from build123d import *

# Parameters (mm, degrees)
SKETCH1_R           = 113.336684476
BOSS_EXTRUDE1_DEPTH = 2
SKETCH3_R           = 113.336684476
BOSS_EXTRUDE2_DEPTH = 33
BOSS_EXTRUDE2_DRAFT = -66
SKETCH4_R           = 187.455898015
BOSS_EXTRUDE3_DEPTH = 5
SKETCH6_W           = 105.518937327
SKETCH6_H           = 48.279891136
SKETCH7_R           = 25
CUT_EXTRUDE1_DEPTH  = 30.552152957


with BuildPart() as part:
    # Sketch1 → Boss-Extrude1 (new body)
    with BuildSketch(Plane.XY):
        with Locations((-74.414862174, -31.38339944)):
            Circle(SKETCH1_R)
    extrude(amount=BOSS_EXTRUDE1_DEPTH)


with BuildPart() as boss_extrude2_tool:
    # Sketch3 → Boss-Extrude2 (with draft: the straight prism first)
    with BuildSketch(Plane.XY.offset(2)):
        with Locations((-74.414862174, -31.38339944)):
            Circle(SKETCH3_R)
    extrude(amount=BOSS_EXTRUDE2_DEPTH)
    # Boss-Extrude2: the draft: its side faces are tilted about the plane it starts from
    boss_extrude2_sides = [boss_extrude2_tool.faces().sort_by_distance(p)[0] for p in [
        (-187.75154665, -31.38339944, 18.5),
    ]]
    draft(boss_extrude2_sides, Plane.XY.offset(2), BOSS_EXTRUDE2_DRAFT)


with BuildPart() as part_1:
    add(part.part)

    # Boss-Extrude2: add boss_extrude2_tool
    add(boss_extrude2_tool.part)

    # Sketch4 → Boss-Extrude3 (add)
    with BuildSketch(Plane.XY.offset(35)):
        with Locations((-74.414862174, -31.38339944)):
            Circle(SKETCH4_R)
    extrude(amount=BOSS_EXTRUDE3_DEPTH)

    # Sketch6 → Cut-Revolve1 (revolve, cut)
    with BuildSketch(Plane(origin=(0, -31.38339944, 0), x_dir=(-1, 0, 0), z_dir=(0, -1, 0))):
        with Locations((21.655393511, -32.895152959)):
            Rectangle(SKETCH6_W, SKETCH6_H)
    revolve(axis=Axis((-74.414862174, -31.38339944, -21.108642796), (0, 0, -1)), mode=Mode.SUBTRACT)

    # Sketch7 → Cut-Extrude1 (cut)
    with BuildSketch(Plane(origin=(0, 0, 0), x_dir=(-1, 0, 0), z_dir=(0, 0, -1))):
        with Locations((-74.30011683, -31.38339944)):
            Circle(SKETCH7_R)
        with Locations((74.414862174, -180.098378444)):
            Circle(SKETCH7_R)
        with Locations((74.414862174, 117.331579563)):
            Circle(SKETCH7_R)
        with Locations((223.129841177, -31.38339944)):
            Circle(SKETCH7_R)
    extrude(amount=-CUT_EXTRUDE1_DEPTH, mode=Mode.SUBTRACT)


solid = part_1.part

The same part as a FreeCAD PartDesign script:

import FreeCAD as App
import Part
import Sketcher

V = App.Vector


def faces_at(feature, points):
    """Names of the faces that lie closest to the given points."""
    faces = feature.Shape.Faces
    near = lambda p: min(range(len(faces)), key=lambda i: faces[i].distToShape(Part.Vertex(*p))[0])
    return sorted({f"Face{near(p) + 1}" for p in points})

doc = App.newDocument("Part")
body = doc.addObject("PartDesign::Body", "Body")

sketch1 = doc.addObject("Sketcher::SketchObject", "Sketch")
body.addObject(sketch1)
sketch1.AttachmentSupport = (doc.XY_Plane, [""])
sketch1.MapMode = "FlatFace"
sketch1.addGeometry(Part.Circle(V(-74, -31, 0), V(0, 0, 1), 113), False)
sketch1.addConstraint(Sketcher.Constraint("Diameter", 0, 226.673369))
sketch1.addConstraint(Sketcher.Constraint("DistanceY", 0, 3, -1, 1, 31.383399))
sketch1.addConstraint(Sketcher.Constraint("DistanceX", 0, 3, -1, 1, 74.414862))
pad1 = doc.addObject("PartDesign::Pad", "Pad")
body.addObject(pad1)
pad1.Profile = sketch1
pad1.Length = 2
body2 = doc.addObject("PartDesign::Body", "Body001")

sketch2 = doc.addObject("Sketcher::SketchObject", "Sketch001")
body2.addObject(sketch2)
sketch2.AttachmentSupport = (doc.getObject("XY_Plane001"), [""])
sketch2.MapMode = "FlatFace"
sketch2.AttachmentOffset = App.Placement(V(0, 0, 2), App.Rotation())
sketch2.addGeometry(Part.Circle(V(-74, -31, 0), V(0, 0, 1), 113), False)
sketch2.addConstraint(Sketcher.Constraint("Diameter", 0, 226.673369))
sketch2.addConstraint(Sketcher.Constraint("DistanceY", 0, 3, -1, 1, 31.383399))
sketch2.addConstraint(Sketcher.Constraint("DistanceX", 0, 3, -1, 1, 74.414862))
pad2 = doc.addObject("PartDesign::Pad", "Pad001")
body2.addObject(pad2)
pad2.Profile = sketch2
pad2.Length = 33
doc.recompute()

datumplane = doc.addObject("PartDesign::Plane", "DatumPlane")
body2.addObject(datumplane)
datumplane.AttachmentSupport = (doc.getObject("XY_Plane001"), [""])
datumplane.MapMode = "FlatFace"
datumplane.AttachmentOffset = App.Placement(V(0, 0, 2), App.Rotation())
draft = doc.addObject("PartDesign::Draft", "Draft")
body2.addObject(draft)
draft.Base = (pad2, faces_at(pad2, [(-187.752, -31.383, 18.5)]))
draft.NeutralPlane = (datumplane, [""])
draft.Angle = 66
draft.Reversed = True
doc.recompute()

boolean = doc.addObject("PartDesign::Boolean", "Boolean")
body.addObject(boolean)
boolean.Type = "Fuse"
boolean.addObjects([body2])

sketch3 = doc.addObject("Sketcher::SketchObject", "Sketch002")
body.addObject(sketch3)
sketch3.AttachmentSupport = (doc.XY_Plane, [""])
sketch3.MapMode = "FlatFace"
sketch3.AttachmentOffset = App.Placement(V(0, 0, 35), App.Rotation())
sketch3.addGeometry(Part.Circle(V(-74, -31, 0), V(0, 0, 1), 187), False)
sketch3.addConstraint(Sketcher.Constraint("Diameter", 0, 374.911796))
sketch3.addConstraint(Sketcher.Constraint("DistanceY", 0, 3, -1, 1, 31.383399))
sketch3.addConstraint(Sketcher.Constraint("DistanceX", 0, 3, -1, 1, 74.414862))
pad3 = doc.addObject("PartDesign::Pad", "Pad002")
body.addObject(pad3)
pad3.Profile = sketch3
pad3.Length = 5

sketch4 = doc.addObject("Sketcher::SketchObject", "Sketch003")
body.addObject(sketch4)
sketch4.AttachmentSupport = (doc.XZ_Plane, [""])
sketch4.MapMode = "FlatFace"
sketch4.AttachmentOffset = App.Placement(V(0, 0, 31.383399), App.Rotation())
sketch4.addGeometry(Part.LineSegment(V(31, 9, 0), V(31, 57, 0)), False)
sketch4.addGeometry(Part.LineSegment(V(31, 57, 0), V(-74, 57, 0)), False)
sketch4.addGeometry(Part.LineSegment(V(-74, 57, 0), V(-74, 9, 0)), False)
sketch4.addGeometry(Part.LineSegment(V(-74, 9, 0), V(31, 9, 0)), False)
sketch4.addGeometry(Part.LineSegment(V(-74, 57, 0), V(-74, 9, 0)), True)
sketch4.addConstraint(Sketcher.Constraint("Coincident", 0, 2, 1, 1))
sketch4.addConstraint(Sketcher.Constraint("Coincident", 1, 2, 2, 1))
sketch4.addConstraint(Sketcher.Constraint("Coincident", 2, 2, 3, 1))
sketch4.addConstraint(Sketcher.Constraint("Coincident", 3, 2, 0, 1))
sketch4.addConstraint(Sketcher.Constraint("Vertical", 0))
sketch4.addConstraint(Sketcher.Constraint("Horizontal", 1))
sketch4.addConstraint(Sketcher.Constraint("Vertical", 2))
sketch4.addConstraint(Sketcher.Constraint("Horizontal", 3))
sketch4.addConstraint(Sketcher.Constraint("Vertical", 4))
sketch4.addConstraint(Sketcher.Constraint("Coincident", 4, 1, 1, 2))
sketch4.addConstraint(Sketcher.Constraint("Horizontal", 3, 2, 4, 2))
sketch4.addConstraint(Sketcher.Constraint("DistanceY", 0, 1, 0, 2, 48.279891))
sketch4.addConstraint(Sketcher.Constraint("DistanceY", -1, 1, 0, 2, 57.035099))
sketch4.addConstraint(Sketcher.Constraint("DistanceX", 1, 2, 1, 1, 105.518937))
sketch4.addConstraint(Sketcher.Constraint("DistanceX", -1, 1, 0, 2, 31.104075))
groove = doc.addObject("PartDesign::Groove", "Groove")
body.addObject(groove)
groove.Profile = sketch4
groove.ReferenceAxis = (sketch4, ["Axis0"])
groove.Angle = 360

sketch5 = doc.addObject("Sketcher::SketchObject", "Sketch004")
body.addObject(sketch5)
sketch5.AttachmentSupport = (doc.XY_Plane, [""])
sketch5.MapMode = "FlatFace"
sketch5.addGeometry(Part.Circle(V(74, -31, 0), V(0, 0, 1), 25), False)
sketch5.addGeometry(Part.Circle(V(-74, -180, 0), V(0, 0, 1), 25), False)
sketch5.addGeometry(Part.Circle(V(-74, 117, 0), V(0, 0, 1), 25), False)
sketch5.addGeometry(Part.Circle(V(-223, -31, 0), V(0, 0, 1), 25), False)
sketch5.addConstraint(Sketcher.Constraint("Equal", 0, 1))
sketch5.addConstraint(Sketcher.Constraint("Equal", 1, 2))
sketch5.addConstraint(Sketcher.Constraint("Equal", 2, 3))
sketch5.addConstraint(Sketcher.Constraint("Horizontal", 0, 3, 3, 3))
sketch5.addConstraint(Sketcher.Constraint("Vertical", 1, 3, 2, 3))
sketch5.addConstraint(Sketcher.Constraint("Diameter", 0, 50.0))
sketch5.addConstraint(Sketcher.Constraint("DistanceY", 0, 3, -1, 1, 31.383399))
sketch5.addConstraint(Sketcher.Constraint("DistanceY", 1, 3, -1, 1, 180.098378))
sketch5.addConstraint(Sketcher.Constraint("DistanceY", -1, 1, 2, 3, 117.33158))
sketch5.addConstraint(Sketcher.Constraint("DistanceX", 3, 3, -1, 1, 223.129841))
sketch5.addConstraint(Sketcher.Constraint("DistanceX", 1, 3, 0, 3, 148.714979))
sketch5.addConstraint(Sketcher.Constraint("DistanceX", 3, 3, 2, 3, 148.714979))
pocket1 = doc.addObject("PartDesign::Pocket", "Pocket")
body.addObject(pocket1)
pocket1.Profile = sketch5
pocket1.Length = 30.552153
pocket1.Reversed = True

doc.recompute()
